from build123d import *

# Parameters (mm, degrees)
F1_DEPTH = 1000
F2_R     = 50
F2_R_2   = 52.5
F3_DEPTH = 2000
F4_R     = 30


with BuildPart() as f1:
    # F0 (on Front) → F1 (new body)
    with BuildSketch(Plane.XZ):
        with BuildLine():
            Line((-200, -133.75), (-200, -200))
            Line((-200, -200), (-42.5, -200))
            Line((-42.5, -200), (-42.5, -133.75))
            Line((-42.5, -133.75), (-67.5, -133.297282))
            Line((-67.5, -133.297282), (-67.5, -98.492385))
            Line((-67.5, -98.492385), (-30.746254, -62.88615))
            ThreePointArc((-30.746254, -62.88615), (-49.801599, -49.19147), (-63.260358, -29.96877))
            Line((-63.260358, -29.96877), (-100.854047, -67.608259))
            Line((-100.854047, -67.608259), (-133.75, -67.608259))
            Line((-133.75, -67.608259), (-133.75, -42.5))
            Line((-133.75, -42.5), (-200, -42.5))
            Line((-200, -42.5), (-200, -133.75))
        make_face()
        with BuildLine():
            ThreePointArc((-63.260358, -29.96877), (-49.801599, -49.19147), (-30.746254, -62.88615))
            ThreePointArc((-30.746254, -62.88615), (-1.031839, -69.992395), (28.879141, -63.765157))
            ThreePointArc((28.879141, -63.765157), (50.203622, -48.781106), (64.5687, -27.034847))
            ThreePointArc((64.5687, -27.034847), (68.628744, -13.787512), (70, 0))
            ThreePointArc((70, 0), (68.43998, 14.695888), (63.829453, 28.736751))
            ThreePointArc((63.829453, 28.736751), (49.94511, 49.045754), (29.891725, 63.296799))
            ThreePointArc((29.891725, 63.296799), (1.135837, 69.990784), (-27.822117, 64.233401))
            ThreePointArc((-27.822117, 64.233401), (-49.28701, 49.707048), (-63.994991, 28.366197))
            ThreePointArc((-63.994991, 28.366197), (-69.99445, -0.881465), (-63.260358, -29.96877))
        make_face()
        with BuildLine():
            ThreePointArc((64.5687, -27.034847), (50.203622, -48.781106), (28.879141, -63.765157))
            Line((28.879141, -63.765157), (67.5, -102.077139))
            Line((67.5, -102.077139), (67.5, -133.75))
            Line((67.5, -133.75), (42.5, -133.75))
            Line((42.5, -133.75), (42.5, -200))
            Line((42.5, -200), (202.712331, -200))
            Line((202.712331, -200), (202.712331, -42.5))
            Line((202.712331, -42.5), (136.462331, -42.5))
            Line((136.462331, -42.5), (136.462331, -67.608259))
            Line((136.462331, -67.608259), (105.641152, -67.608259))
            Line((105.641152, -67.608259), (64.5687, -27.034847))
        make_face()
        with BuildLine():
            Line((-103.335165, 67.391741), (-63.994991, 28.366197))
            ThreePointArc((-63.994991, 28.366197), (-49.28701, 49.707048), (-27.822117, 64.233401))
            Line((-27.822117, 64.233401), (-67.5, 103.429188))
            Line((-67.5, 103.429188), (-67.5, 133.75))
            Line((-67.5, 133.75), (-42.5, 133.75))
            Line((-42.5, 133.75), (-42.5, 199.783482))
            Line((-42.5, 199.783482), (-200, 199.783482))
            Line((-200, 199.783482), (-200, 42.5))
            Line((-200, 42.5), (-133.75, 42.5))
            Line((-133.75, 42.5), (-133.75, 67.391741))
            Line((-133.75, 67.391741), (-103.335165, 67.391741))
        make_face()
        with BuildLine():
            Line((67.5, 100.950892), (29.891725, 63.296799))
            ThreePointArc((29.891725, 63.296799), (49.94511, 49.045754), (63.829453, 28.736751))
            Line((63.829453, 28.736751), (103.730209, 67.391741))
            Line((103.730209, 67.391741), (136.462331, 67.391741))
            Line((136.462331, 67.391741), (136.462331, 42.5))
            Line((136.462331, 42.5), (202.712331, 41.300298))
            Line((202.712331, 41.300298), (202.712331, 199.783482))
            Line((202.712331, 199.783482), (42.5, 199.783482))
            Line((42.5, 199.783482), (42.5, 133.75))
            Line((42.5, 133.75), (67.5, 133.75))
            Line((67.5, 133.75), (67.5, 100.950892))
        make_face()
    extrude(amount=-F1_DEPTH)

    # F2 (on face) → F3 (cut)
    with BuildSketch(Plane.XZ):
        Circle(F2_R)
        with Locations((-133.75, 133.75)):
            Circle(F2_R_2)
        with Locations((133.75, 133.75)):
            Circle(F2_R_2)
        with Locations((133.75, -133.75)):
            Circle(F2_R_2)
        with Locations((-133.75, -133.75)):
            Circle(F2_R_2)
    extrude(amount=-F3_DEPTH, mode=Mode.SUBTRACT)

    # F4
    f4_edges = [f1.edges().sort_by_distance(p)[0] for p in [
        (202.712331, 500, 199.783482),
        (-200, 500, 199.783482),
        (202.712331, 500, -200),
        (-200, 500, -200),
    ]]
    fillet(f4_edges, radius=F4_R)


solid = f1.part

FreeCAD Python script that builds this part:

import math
import FreeCAD as App
import Part
import Sketcher
from FreeCAD import Vector
Q = App.Units.Quantity


def edges_at(feature, points):
    """Names of the edges that pass closest to the given points."""
    edges = feature.Shape.Edges
    near = lambda p: min(range(len(edges)), key=lambda i: edges[i].distToShape(Part.Vertex(*p))[0])
    return sorted({f"Edge{near(p) + 1}" for p in points})

doc = App.newDocument("Part")
body = doc.addObject("PartDesign::Body", "Body")

# Sketch on XZ plane
sketch1 = body.newObject("Sketcher::SketchObject", "Sketch")
sketch1.AttachmentSupport = (doc.getObject("XZ_Plane"), [""])
sketch1.MapMode = "FlatFace"
sketch1.addGeometry([
    Part.LineSegment(Vector(-200, -200, 0), Vector(-42.5, -200, 0)),  # 0
    Part.LineSegment(Vector(-42.5, -200, 0), Vector(-42.5, -133.75, 0)),  # 1
    Part.LineSegment(Vector(-42.5, -133.75, 0), Vector(-67.5, -133.297282, 0)),  # 2
    Part.LineSegment(Vector(-67.5, -133.297282, 0), Vector(-67.5, -98.492385, 0)),  # 3
    Part.LineSegment(Vector(-67.5, -98.492385, 0), Vector(-30.746254, -62.88615, 0)),  # 4
    Part.ArcOfCircle(Part.Circle(Vector(0, -0.000003, 0), Vector(0, 0, 1), 69.999998), math.radians(-116.054904), math.radians(-65.634301)),  # 5
    Part.LineSegment(Vector(28.879141, -63.765157, 0), Vector(67.5, -102.077139, 0)),  # 6
    Part.LineSegment(Vector(67.5, -102.077139, 0), Vector(67.5, -133.75, 0)),  # 7
    Part.LineSegment(Vector(67.5, -133.75, 0), Vector(42.5, -133.75, 0)),  # 8
    Part.LineSegment(Vector(42.5, -133.75, 0), Vector(42.5, -200, 0)),  # 9
    Part.LineSegment(Vector(42.5, -200, 0), Vector(202.712331, -200, 0)),  # 10
    Part.LineSegment(Vector(202.712331, -200, 0), Vector(202.712331, -42.5, 0)),  # 11
    Part.LineSegment(Vector(202.712331, -42.5, 0), Vector(136.462331, -42.5, 0)),  # 12
    Part.LineSegment(Vector(136.462331, -42.5, 0), Vector(136.462331, -67.608259, 0)),  # 13
    Part.LineSegment(Vector(136.462331, -67.608259, 0), Vector(105.641152, -67.608259, 0)),  # 14
    Part.LineSegment(Vector(105.641152, -67.608259, 0), Vector(64.5687, -27.034847, 0)),  # 15
    Part.ArcOfCircle(Part.Circle(Vector(0.000002, 0, 0), Vector(0, 0, 1), 69.999998), math.radians(-22.71901), math.radians(0)),  # 16
    Part.ArcOfCircle(Part.Circle(Vector(0.000007, 0, 0), Vector(0, 0, 1), 69.999993), math.radians(0), math.radians(24.237822)),  # 17
    Part.LineSegment(Vector(63.829453, 28.736751, 0), Vector(103.730209, 67.391741, 0)),  # 18
    Part.LineSegment(Vector(103.730209, 67.391741, 0), Vector(136.462331, 67.391741, 0)),  # 19
    Part.LineSegment(Vector(136.462331, 67.391741, 0), Vector(136.462331, 42.5, 0)),  # 20
    Part.LineSegment(Vector(136.462331, 42.5, 0), Vector(202.712331, 41.300298, 0)),  # 21
    Part.LineSegment(Vector(202.712331, 41.300298, 0), Vector(202.712331, 199.783482, 0)),  # 22
    Part.LineSegment(Vector(202.712331, 199.783482, 0), Vector(42.5, 199.783482, 0)),  # 23
    Part.LineSegment(Vector(42.5, 199.783482, 0), Vector(42.5, 133.75, 0)),  # 24
    Part.LineSegment(Vector(42.5, 133.75, 0), Vector(67.5, 133.75, 0)),  # 25
    Part.LineSegment(Vector(67.5, 133.75, 0), Vector(67.5, 100.950892, 0)),  # 26
    Part.LineSegment(Vector(67.5, 100.950892, 0), Vector(29.891725, 63.296799, 0)),  # 27
    Part.ArcOfCircle(Part.Circle(Vector(0, -0.000002, 0), Vector(0, 0, 1), 70.000002), math.radians(64.721116), math.radians(113.419412)),  # 28
    Part.LineSegment(Vector(-27.822117, 64.233401, 0), Vector(-67.5, 103.429188, 0)),  # 29
    Part.LineSegment(Vector(-67.5, 103.429188, 0), Vector(-67.5, 133.75, 0)),  # 30
    Part.LineSegment(Vector(-67.5, 133.75, 0), Vector(-42.5, 133.75, 0)),  # 31
    Part.LineSegment(Vector(-42.5, 133.75, 0), Vector(-42.5, 199.783482, 0)),  # 32
    Part.LineSegment(Vector(-42.5, 199.783482, 0), Vector(-200, 199.783482, 0)),  # 33
    Part.LineSegment(Vector(-200, 199.783482, 0), Vector(-200, 42.5, 0)),  # 34
    Part.LineSegment(Vector(-200, 42.5, 0), Vector(-133.75, 42.5, 0)),  # 35
    Part.LineSegment(Vector(-133.75, 42.5, 0), Vector(-133.75, 67.391741, 0)),  # 36
    Part.LineSegment(Vector(-133.75, 67.391741, 0), Vector(-103.335165, 67.391741, 0)),  # 37
    Part.LineSegment(Vector(-103.335165, 67.391741, 0), Vector(-63.994991, 28.366197, 0)),  # 38
    Part.ArcOfCircle(Part.Circle(Vector(0.000002, -0.000001, 0), Vector(0, 0, 1), 70.000002), math.radians(156.094373), math.radians(205.348643)),  # 39
    Part.LineSegment(Vector(-63.260358, -29.96877, 0), Vector(-100.854047, -67.608259, 0)),  # 40
    Part.LineSegment(Vector(-100.854047, -67.608259, 0), Vector(-133.75, -67.608259, 0)),  # 41
    Part.LineSegment(Vector(-133.75, -67.608259, 0), Vector(-133.75, -42.5, 0)),  # 42
    Part.LineSegment(Vector(-133.75, -42.5, 0), Vector(-200, -42.5, 0)),  # 43
    Part.LineSegment(Vector(-200, -42.5, 0), Vector(-200, -200, 0)),  # 44
], False)
sketch1.addConstraint([
    Sketcher.Constraint("Coincident", 0, 2, 1, 1),
    Sketcher.Constraint("Coincident", 1, 2, 2, 1),
    Sketcher.Constraint("Coincident", 2, 2, 3, 1),
    Sketcher.Constraint("Coincident", 3, 2, 4, 1),
    Sketcher.Constraint("Coincident", 4, 2, 5, 1),
    Sketcher.Constraint("Coincident", 5, 2, 6, 1),
    Sketcher.Constraint("Coincident", 6, 2, 7, 1),
    Sketcher.Constraint("Coincident", 7, 2, 8, 1),
    Sketcher.Constraint("Coincident", 8, 2, 9, 1),
    Sketcher.Constraint("Coincident", 9, 2, 10, 1),
    Sketcher.Constraint("Coincident", 10, 2, 11, 1),
    Sketcher.Constraint("Coincident", 11, 2, 12, 1),
    Sketcher.Constraint("Coincident", 12, 2, 13, 1),
    Sketcher.Constraint("Coincident", 13, 2, 14, 1),
    Sketcher.Constraint("Coincident", 14, 2, 15, 1),
    Sketcher.Constraint("Coincident", 15, 2, 16, 1),
    Sketcher.Constraint("Coincident", 16, 2, 17, 1),
    Sketcher.Constraint("Coincident", 17, 2, 18, 1),
    Sketcher.Constraint("Coincident", 18, 2, 19, 1),
    Sketcher.Constraint("Coincident", 19, 2, 20, 1),
    Sketcher.Constraint("Coincident", 20, 2, 21, 1),
    Sketcher.Constraint("Coincident", 21, 2, 22, 1),
    Sketcher.Constraint("Coincident", 22, 2, 23, 1),
    Sketcher.Constraint("Coincident", 23, 2, 24, 1),
    Sketcher.Constraint("Coincident", 24, 2, 25, 1),
    Sketcher.Constraint("Coincident", 25, 2, 26, 1),
    Sketcher.Constraint("Coincident", 26, 2, 27, 1),
    Sketcher.Constraint("Coincident", 27, 2, 28, 1),
    Sketcher.Constraint("Coincident", 28, 2, 29, 1),
    Sketcher.Constraint("Coincident", 29, 2, 30, 1),
    Sketcher.Constraint("Coincident", 30, 2, 31, 1),
    Sketcher.Constraint("Coincident", 31, 2, 32, 1),
    Sketcher.Constraint("Coincident", 32, 2, 33, 1),
    Sketcher.Constraint("Coincident", 33, 2, 34, 1),
    Sketcher.Constraint("Coincident", 34, 2, 35, 1),
    Sketcher.Constraint("Coincident", 35, 2, 36, 1),
    Sketcher.Constraint("Coincident", 36, 2, 37, 1),
    Sketcher.Constraint("Coincident", 37, 2, 38, 1),
    Sketcher.Constraint("Coincident", 38, 2, 39, 1),
    Sketcher.Constraint("Coincident", 39, 2, 40, 1),
    Sketcher.Constraint("Coincident", 40, 2, 41, 1),
    Sketcher.Constraint("Coincident", 41, 2, 42, 1),
    Sketcher.Constraint("Coincident", 42, 2, 43, 1),
    Sketcher.Constraint("Coincident", 43, 2, 44, 1),
    Sketcher.Constraint("Coincident", 44, 2, 0, 1),
    Sketcher.Constraint("Horizontal", 0),
    Sketcher.Constraint("Vertical", 1),
    Sketcher.Constraint("Vertical", 3),
    Sketcher.Constraint("Vertical", 7),
    Sketcher.Constraint("Horizontal", 8),
    Sketcher.Constraint("Vertical", 9),
    Sketcher.Constraint("Horizontal", 10),
    Sketcher.Constraint("Vertical", 11),
    Sketcher.Constraint("Horizontal", 12),
    Sketcher.Constraint("Vertical", 13),
    Sketcher.Constraint("Horizontal", 14),
    Sketcher.Constraint("Horizontal", 19),
    Sketcher.Constraint("Vertical", 20),
    Sketcher.Constraint("Vertical", 22),
    Sketcher.Constraint("Horizontal", 23),
    Sketcher.Constraint("Vertical", 24),
    Sketcher.Constraint("Horizontal", 25),
    Sketcher.Constraint("Vertical", 26),
    Sketcher.Constraint("Vertical", 30),
    Sketcher.Constraint("Horizontal", 31),
    Sketcher.Constraint("Vertical", 32),
    Sketcher.Constraint("Horizontal", 33),
    Sketcher.Constraint("Vertical", 34),
    Sketcher.Constraint("Horizontal", 35),
    Sketcher.Constraint("Vertical", 36),
    Sketcher.Constraint("Horizontal", 37),
    Sketcher.Constraint("Horizontal", 41),
    Sketcher.Constraint("Vertical", 42),
    Sketcher.Constraint("Horizontal", 43),
    Sketcher.Constraint("Vertical", 44),
    Sketcher.Constraint("Coincident", 5, 3, -1, 1),
    Sketcher.Constraint("Coincident", 16, 3, -1, 1),
    Sketcher.Constraint("Coincident", 17, 3, -1, 1),
    Sketcher.Constraint("Coincident", 28, 3, -1, 1),
    Sketcher.Constraint("Coincident", 39, 3, -1, 1),
    Sketcher.Constraint("PointOnObject", 16, 2, -1),
    Sketcher.Constraint("Radius", 16, Q("69.999998 mm")),
    Sketcher.Constraint("Radius", 28, Q("70.000002 mm")),
    Sketcher.Constraint("DistanceX", 8, 2, 8, 1, Q("25 mm")),
    Sketcher.Constraint("DistanceX", 25, 1, 25, 2, Q("25 mm")),
    Sketcher.Constraint("DistanceX", 31, 1, 31, 2, Q("25 mm")),
    Sketcher.Constraint("DistanceX", 0, 1, 0, 2, Q("157.5 mm")),
    Sketcher.Constraint("DistanceX", 33, 2, 33, 1, Q("157.5 mm")),
    Sketcher.Constraint("DistanceY", 11, 1, 11, 2, Q("157.5 mm")),
    Sketcher.Constraint("DistanceY", 44, 2, 44, 1, Q("157.5 mm")),
    Sketcher.Constraint("DistanceY", 0, 2, -1, 1, Q("200 mm")),
    Sketcher.Constraint("DistanceY", 9, 2, -1, 1, Q("200 mm")),
    Sketcher.Constraint("DistanceX", 33, 2, -1, 1, Q("200 mm")),
    Sketcher.Constraint("DistanceX", 43, 2, -1, 1, Q("200 mm")),
    Sketcher.Constraint("DistanceX", 2, 2, 1, 2, Q("25 mm")),
    Sketcher.Constraint("DistanceX", 1, 2, 6, 2, Q("110 mm")),
    Sketcher.Constraint("DistanceY", 12, 2, 20, 2, Q("85 mm")),
    Sketcher.Constraint("DistanceX", 29, 2, 24, 2, Q("110 mm")),
    Sketcher.Constraint("DistanceY", 42, 2, 35, 2, Q("85 mm")),
    Sketcher.Constraint("DistanceX", 12, 2, 12, 1, Q("66.25 mm")),
    Sketcher.Constraint("DistanceX", 35, 1, 35, 2, Q("66.25 mm")),
    Sketcher.Constraint("DistanceX", 43, 2, 43, 1, Q("66.25 mm")),
    Sketcher.Constraint("DistanceY", 1, 1, 1, 2, Q("66.25 mm")),
    Sketcher.Constraint("DistanceY", 9, 2, 9, 1, Q("66.25 mm")),
    Sketcher.Constraint("DistanceY", -1, 1, 24, 2, Q("133.75 mm")),
    Sketcher.Constraint("DistanceY", -1, 1, 30, 2, Q("133.75 mm")),
    Sketcher.Constraint("DistanceX", 20, 2, 21, 2, Q("66.25 mm")),
    Sketcher.Constraint("DistanceX", 12, 2, 21, 2, Q("66.25 mm")),
    Sketcher.Constraint("Radius", 5, Q("69.999998 mm")),
    Sketcher.Constraint("Radius", 39, Q("70.000002 mm")),
    Sketcher.Constraint("Distance", 2, Q("25.004099 mm")),
    Sketcher.Constraint("Distance", 40, Q("53.1979 mm")),
    Sketcher.Constraint("DistanceX", 10, 1, 10, 2, Q("160.212331 mm")),
    Sketcher.Constraint("DistanceX", 14, 2, 14, 1, Q("30.821179 mm")),
    Sketcher.Constraint("DistanceY", 7, 2, 7, 1, Q("31.672861 mm")),
    Sketcher.Constraint("DistanceY", 13, 2, 13, 1, Q("25.108259 mm")),
    Sketcher.Constraint("DistanceY", 20, 2, 20, 1, Q("24.891741 mm")),
    Sketcher.Constraint("DistanceY", 24, 2, 24, 1, Q("66.033482 mm")),
    Sketcher.Constraint("DistanceY", 26, 2, 26, 1, Q("32.799108 mm")),
    Sketcher.Constraint("DistanceY", 32, 1, 32, 2, Q("66.033482 mm")),
    Sketcher.Constraint("DistanceY", 36, 1, 36, 2, Q("24.891741 mm")),
    Sketcher.Constraint("DistanceY", 42, 1, 42, 2, Q("25.108259 mm")),
    Sketcher.Constraint("DistanceX", -1, 1, 15, 2, Q("64.5687 mm")),
    Sketcher.Constraint("DistanceY", -1, 1, 27, 2, Q("63.296799 mm")),
    Sketcher.Constraint("DistanceY", -1, 1, 28, 2, Q("64.233401 mm")),
    Sketcher.Constraint("DistanceY", 15, 2, 17, 2, Q("55.771598 mm")),
    Sketcher.Constraint("DistanceX", 17, 3, 18, 2, Q("103.730202 mm")),
    Sketcher.Constraint("DistanceY", 11, 2, 21, 2, Q("83.800298 mm")),
    Sketcher.Constraint("DistanceY", 28, 3, 38, 2, Q("28.366199 mm")),
    Sketcher.Constraint("Distance", 29, Q("55.773149 mm")),
    Sketcher.Constraint("DistanceX", 37, 1, 37, 2, Q("30.414835 mm")),
    Sketcher.Constraint("DistanceX", 41, 2, 41, 1, Q("32.895953 mm")),
    Sketcher.Constraint("DistanceY", 3, 1, 3, 2, Q("34.804897 mm")),
    Sketcher.Constraint("DistanceY", 4, 2, -1, 1, Q("62.88615 mm")),
    Sketcher.Constraint("DistanceX", -1, 1, 5, 2, Q("28.879141 mm")),
])
pad1 = body.newObject("PartDesign::Pad", "Pad")
pad1.Profile = sketch1
pad1.Length = 1000
pad1.Reversed = True

# Sketch on XZ plane
sketch2 = body.newObject("Sketcher::SketchObject", "Sketch001")
sketch2.AttachmentSupport = (doc.getObject("XZ_Plane"), [""])
sketch2.MapMode = "FlatFace"
sketch2.addGeometry([
    Part.Circle(Vector(0, 0, 0), Vector(0, 0, 1), 50),  # 0
    Part.Circle(Vector(-134, 134, 0), Vector(0, 0, 1), 52),  # 1
    Part.Circle(Vector(134, 134, 0), Vector(0, 0, 1), 52),  # 2
    Part.Circle(Vector(134, -134, 0), Vector(0, 0, 1), 52),  # 3
    Part.Circle(Vector(-134, -134, 0), Vector(0, 0, 1), 52),  # 4
], False)
sketch2.addConstraint([
    Sketcher.Constraint("Coincident", 0, 3, -1, 1),
    Sketcher.Constraint("Equal", 1, 2),
    Sketcher.Constraint("Equal", 2, 3),
    Sketcher.Constraint("Equal", 3, 4),
    Sketcher.Constraint("Symmetric", 1, 3, 3, 3, -1, 1),
    Sketcher.Constraint("Symmetric", 2, 3, 4, 3, -1, 1),
    Sketcher.Constraint("Symmetric", 1, 3, 2, 3, -2),
    Sketcher.Constraint("Diameter", 0, Q("100 mm")),
    Sketcher.Constraint("Diameter", 1, Q("105 mm")),
    Sketcher.Constraint("DistanceX", 1, 3, 2, 3, Q("267.5 mm")),
    Sketcher.Constraint("DistanceY", 3, 3, 2, 3, Q("267.5 mm")),
])
pocket1 = body.newObject("PartDesign::Pocket", "Pocket")
pocket1.Profile = sketch2
pocket1.Length = 2000
doc.recompute()

fillet = body.newObject("PartDesign::Fillet", "Fillet")
fillet.Base = (pocket1, edges_at(pocket1, [
    (202.712, 500, 199.783),
    (-200, 500, 199.783),
    (202.712, 500, -200),
    (-200, 500, -200),
]))
fillet.Radius = 30

doc.recompute()
